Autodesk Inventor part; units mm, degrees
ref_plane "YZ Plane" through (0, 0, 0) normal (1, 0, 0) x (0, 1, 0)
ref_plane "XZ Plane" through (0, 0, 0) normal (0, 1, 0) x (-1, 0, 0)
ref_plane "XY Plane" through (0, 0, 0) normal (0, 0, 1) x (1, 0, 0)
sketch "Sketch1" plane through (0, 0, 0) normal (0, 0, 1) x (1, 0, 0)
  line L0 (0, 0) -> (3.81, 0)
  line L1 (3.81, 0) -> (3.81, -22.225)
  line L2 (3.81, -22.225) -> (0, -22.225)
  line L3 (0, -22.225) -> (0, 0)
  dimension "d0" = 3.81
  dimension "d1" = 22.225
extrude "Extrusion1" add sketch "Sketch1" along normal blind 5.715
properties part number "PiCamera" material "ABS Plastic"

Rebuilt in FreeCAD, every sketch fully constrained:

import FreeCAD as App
import Part
import Sketcher
from FreeCAD import Vector
Q = App.Units.Quantity

doc = App.newDocument("Part")
params = doc.addObject("Spreadsheet::Sheet", "Params")
for row, (alias, value) in enumerate([
    ("sketch1_width", "0.15 in"),
    ("sketch1_height", "0.875 in"),
    ("pad1_length", "0.225 in"),
], start=1):
    params.set(f"A{row}", alias)
    params.set(f"B{row}", "=" + value)
    params.setAlias(f"B{row}", alias)

body = doc.addObject("PartDesign::Body", "Body")

sketch1 = body.newObject("Sketcher::SketchObject", "Sketch")
sketch1.AttachmentSupport = (doc.getObject("XY_Plane"), [""])
sketch1.MapMode = "FlatFace"
sketch1.addGeometry([
    Part.LineSegment(Vector(3.81, 0, 0), Vector(0, 0, 0)),
    Part.LineSegment(Vector(0, 0, 0), Vector(0, -22.225, 0)),
    Part.LineSegment(Vector(0, -22.225, 0), Vector(3.81, -22.225, 0)),
    Part.LineSegment(Vector(3.81, -22.225, 0), Vector(3.81, 0, 0)),
], False)
sketch1.addConstraint([
    Sketcher.Constraint("Coincident", 0, 2, 1, 1),
    Sketcher.Constraint("Coincident", 1, 2, 2, 1),
    Sketcher.Constraint("Coincident", 2, 2, 3, 1),
    Sketcher.Constraint("Coincident", 3, 2, 0, 1),
    Sketcher.Constraint("Horizontal", 0),
    Sketcher.Constraint("Vertical", 1),
    Sketcher.Constraint("Horizontal", 2),
    Sketcher.Constraint("Vertical", 3),
    Sketcher.Constraint("Coincident", 0, 2, -1, 1),
    Sketcher.Constraint("DistanceX", 0, 2, 0, 1, Q("0.15 in")),
    Sketcher.Constraint("DistanceY", 1, 2, 1, 1, Q("0.875 in")),
])
sketch1.setExpression("Constraints[9]", "Params.sketch1_width")
sketch1.setExpression("Constraints[10]", "Params.sketch1_height")
pad1 = body.newObject("PartDesign::Pad", "Pad")
pad1.Profile = sketch1
pad1.setExpression("Length", "Params.pad1_length")

doc.recompute()
